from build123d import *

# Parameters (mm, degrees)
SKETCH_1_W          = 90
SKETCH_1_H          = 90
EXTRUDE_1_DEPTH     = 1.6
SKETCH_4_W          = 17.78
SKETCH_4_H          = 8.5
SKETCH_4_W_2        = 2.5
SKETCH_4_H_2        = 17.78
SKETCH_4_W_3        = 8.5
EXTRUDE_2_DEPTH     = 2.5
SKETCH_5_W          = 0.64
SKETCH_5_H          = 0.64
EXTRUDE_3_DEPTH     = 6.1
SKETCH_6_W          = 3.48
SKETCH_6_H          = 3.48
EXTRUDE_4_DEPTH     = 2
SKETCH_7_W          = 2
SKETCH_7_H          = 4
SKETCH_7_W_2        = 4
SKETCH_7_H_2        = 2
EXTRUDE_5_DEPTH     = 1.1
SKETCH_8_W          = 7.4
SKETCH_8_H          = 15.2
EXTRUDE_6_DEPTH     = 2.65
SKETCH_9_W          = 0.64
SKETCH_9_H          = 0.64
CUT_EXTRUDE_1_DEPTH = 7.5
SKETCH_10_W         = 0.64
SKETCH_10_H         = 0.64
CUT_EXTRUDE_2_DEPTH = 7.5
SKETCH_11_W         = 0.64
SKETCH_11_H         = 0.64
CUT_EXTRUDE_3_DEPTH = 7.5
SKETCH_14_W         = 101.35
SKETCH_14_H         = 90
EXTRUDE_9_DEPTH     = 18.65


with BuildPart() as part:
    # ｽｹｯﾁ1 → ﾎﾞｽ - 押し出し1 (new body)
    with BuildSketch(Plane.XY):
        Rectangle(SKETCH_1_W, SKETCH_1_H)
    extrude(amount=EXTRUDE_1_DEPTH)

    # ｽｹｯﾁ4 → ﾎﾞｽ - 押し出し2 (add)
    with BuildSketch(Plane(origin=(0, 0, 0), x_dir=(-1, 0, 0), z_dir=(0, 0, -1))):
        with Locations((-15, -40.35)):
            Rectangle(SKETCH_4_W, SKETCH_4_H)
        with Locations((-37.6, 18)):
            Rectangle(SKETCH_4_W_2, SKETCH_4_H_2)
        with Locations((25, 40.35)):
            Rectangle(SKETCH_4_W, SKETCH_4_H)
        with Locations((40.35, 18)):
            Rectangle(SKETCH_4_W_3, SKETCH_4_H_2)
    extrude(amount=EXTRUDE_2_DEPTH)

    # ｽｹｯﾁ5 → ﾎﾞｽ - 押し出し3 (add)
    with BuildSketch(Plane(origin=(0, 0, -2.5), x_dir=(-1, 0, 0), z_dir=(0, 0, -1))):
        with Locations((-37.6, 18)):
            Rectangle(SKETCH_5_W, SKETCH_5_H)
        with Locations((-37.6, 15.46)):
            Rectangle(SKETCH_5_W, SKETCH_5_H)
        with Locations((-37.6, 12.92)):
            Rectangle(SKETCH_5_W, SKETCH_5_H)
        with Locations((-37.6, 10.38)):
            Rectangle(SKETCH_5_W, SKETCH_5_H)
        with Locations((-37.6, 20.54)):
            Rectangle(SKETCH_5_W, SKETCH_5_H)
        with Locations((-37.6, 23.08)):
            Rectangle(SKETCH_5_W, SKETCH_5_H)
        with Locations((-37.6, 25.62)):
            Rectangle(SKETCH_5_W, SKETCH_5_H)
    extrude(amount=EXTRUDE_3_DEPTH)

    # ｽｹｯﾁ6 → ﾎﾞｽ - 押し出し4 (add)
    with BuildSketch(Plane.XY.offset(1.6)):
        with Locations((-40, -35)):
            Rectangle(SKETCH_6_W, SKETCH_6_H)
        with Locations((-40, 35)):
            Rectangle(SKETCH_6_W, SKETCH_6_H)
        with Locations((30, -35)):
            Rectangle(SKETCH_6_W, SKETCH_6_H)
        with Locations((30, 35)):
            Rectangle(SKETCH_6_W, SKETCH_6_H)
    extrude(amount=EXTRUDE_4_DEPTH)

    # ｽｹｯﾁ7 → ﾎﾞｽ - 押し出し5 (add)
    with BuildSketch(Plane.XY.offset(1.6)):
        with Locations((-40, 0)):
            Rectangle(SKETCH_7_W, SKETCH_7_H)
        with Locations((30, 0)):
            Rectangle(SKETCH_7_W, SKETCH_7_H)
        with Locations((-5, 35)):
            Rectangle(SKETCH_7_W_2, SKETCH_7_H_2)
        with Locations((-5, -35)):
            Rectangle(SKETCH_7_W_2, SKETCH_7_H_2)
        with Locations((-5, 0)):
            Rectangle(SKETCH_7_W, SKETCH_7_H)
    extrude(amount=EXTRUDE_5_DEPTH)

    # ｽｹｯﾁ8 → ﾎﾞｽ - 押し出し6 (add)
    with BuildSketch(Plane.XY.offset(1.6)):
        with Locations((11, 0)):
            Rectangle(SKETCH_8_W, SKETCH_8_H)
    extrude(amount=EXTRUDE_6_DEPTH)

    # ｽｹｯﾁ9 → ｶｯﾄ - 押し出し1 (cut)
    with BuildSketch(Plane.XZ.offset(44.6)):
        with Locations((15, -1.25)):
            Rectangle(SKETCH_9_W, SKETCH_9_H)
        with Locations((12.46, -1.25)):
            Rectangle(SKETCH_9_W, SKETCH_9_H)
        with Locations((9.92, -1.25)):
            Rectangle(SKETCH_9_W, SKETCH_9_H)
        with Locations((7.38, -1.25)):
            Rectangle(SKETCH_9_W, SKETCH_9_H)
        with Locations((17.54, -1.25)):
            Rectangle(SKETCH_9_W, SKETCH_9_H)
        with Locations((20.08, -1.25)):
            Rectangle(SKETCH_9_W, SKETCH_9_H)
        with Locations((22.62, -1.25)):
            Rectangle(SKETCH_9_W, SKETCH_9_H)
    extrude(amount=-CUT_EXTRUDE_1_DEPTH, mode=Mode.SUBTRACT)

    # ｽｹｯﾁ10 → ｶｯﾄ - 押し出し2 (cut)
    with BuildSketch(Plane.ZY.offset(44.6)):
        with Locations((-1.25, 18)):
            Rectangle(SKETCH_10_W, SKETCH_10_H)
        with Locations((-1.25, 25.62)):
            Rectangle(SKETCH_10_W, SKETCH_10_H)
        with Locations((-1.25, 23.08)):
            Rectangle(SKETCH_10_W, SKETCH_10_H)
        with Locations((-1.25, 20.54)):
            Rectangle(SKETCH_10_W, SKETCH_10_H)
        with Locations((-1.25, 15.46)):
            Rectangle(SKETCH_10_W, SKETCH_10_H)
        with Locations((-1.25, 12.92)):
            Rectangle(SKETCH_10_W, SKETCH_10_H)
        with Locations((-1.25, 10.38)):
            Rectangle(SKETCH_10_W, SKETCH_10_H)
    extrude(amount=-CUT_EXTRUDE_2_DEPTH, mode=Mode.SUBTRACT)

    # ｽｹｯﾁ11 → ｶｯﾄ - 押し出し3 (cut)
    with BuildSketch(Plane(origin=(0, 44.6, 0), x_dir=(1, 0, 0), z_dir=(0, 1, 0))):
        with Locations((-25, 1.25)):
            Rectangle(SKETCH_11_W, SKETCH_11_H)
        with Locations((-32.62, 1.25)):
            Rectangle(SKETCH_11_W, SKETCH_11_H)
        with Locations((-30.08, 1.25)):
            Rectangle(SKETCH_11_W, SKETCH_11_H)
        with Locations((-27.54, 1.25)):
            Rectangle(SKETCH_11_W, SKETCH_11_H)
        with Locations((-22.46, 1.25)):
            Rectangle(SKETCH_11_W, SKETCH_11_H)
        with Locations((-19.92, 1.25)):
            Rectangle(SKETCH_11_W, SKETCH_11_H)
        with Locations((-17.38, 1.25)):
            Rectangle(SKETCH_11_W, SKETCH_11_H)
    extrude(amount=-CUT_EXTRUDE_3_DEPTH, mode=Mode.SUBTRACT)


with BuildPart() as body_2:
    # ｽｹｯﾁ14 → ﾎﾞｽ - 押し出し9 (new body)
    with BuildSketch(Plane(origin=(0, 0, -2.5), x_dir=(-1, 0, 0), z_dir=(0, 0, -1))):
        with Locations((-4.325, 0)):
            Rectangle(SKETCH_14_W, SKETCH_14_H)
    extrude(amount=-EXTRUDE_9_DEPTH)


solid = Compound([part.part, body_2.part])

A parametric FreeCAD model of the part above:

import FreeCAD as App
import Part
import Sketcher
from FreeCAD import Vector


def add_polygon(sketch, points):
    """Adds a closed chain of lines whose ends are joined by coincident constraints."""
    first, n = sketch.GeometryCount, len(points)
    for a, b in zip(points, points[1:] + points[:1]):
        sketch.addGeometry(Part.LineSegment(App.Vector(*a, 0), App.Vector(*b, 0)), False)
    for i in range(n):
        sketch.addConstraint(Sketcher.Constraint("Coincident", first + i, 2, first + (i + 1) % n, 1))

doc = App.newDocument("Part")
params = doc.addObject("Spreadsheet::Sheet", "Params")
for row, (alias, value) in enumerate([
    ("sketch1_width", "90 mm"),
    ("pad1_length", "1.6 mm"),
    ("sketch2_width", "2.5 mm"),
    ("sketch2_width2", "8.5 mm"),
    ("sketch2_width3", "17.78 mm"),
    ("pad2_length", "2.5 mm"),
    ("sketch3_width", "0.64 mm"),
    ("pad3_length", "6.1 mm"),
    ("sketch4_width", "3.48 mm"),
    ("pad4_length", "2 mm"),
    ("sketch5_width", "2 mm"),
    ("sketch5_width2", "4 mm"),
    ("pad5_length", "1.1 mm"),
    ("sketch6_width", "7.4 mm"),
    ("sketch6_height", "15.2 mm"),
    ("pad6_length", "2.65 mm"),
    ("sketch7_width", "0.64 mm"),
    ("pocket1_length", "7.5 mm"),
    ("sketch8_width", "0.64 mm"),
    ("pocket2_length", "7.5 mm"),
    ("sketch9_width", "0.64 mm"),
    ("pocket3_length", "7.5 mm"),
    ("sketch10_height", "90 mm"),
    ("sketch10_width", "101.35 mm"),
    ("pad7_length", "18.65 mm"),
], start=1):
    params.set(f"A{row}", alias)
    params.set(f"B{row}", "=" + value)
    params.setAlias(f"B{row}", alias)

body = doc.addObject("PartDesign::Body", "Body")

sketch1 = doc.addObject("Sketcher::SketchObject", "Sketch")
body.addObject(sketch1)
sketch1.AttachmentSupport = (doc.XY_Plane, [""])
sketch1.MapMode = "FlatFace"
add_polygon(sketch1, [(-45, 45), (-45, -45), (45, -45), (45, 45)])
sketch1.addConstraint([
    Sketcher.Constraint("Vertical", 0),
    Sketcher.Constraint("Horizontal", 1),
    Sketcher.Constraint("Vertical", 2),
    Sketcher.Constraint("Horizontal", 3),
    Sketcher.Constraint("Symmetric", 0, 2, 2, 2, -1, 1),
    Sketcher.Constraint("Equal", 3, 0),
    Sketcher.Constraint("DistanceX", 1, 1, 1, 2, 90.0),
])
sketch1.setExpression("Constraints[10]", "Params.sketch1_width")
pad1 = doc.addObject("PartDesign::Pad", "Pad")
body.addObject(pad1)
pad1.Profile = sketch1
pad1.setExpression("Length", "Params.pad1_length")

sketch2 = doc.addObject("Sketcher::SketchObject", "Sketch001")
body.addObject(sketch2)
sketch2.AttachmentSupport = (doc.XY_Plane, [""])
sketch2.MapMode = "FlatFace"
add_polygon(sketch2, [(23.9, -36.1), (23.9, -44.6), (6.1, -44.6), (6.1, -36.1)])
add_polygon(sketch2, [(38.9, 26.9), (38.9, 9.1), (36.4, 9.1), (36.4, 26.9)])
add_polygon(sketch2, [(-16.1, 44.6), (-16.1, 36.1), (-33.9, 36.1), (-33.9, 44.6)])
add_polygon(sketch2, [(-36.1, 26.9), (-36.1, 9.1), (-44.6, 9.1), (-44.6, 26.9)])
sketch2.addConstraint([
    Sketcher.Constraint("Vertical", 0),
    Sketcher.Constraint("Horizontal", 1),
    Sketcher.Constraint("Vertical", 2),
    Sketcher.Constraint("Horizontal", 3),
    Sketcher.Constraint("Vertical", 4),
    Sketcher.Constraint("Horizontal", 5),
    Sketcher.Constraint("Vertical", 6),
    Sketcher.Constraint("Horizontal", 7),
    Sketcher.Constraint("Vertical", 8),
    Sketcher.Constraint("Horizontal", 9),
    Sketcher.Constraint("Vertical", 10),
    Sketcher.Constraint("Horizontal", 11),
    Sketcher.Constraint("Vertical", 12),
    Sketcher.Constraint("Horizontal", 13),
    Sketcher.Constraint("Vertical", 14),
    Sketcher.Constraint("Horizontal", 15),
    Sketcher.Constraint("Horizontal", 5, 2, 12, 2),
    Sketcher.Constraint("Horizontal", 7, 2, 14, 2),
    Sketcher.Constraint("Equal", 3, 9),
    Sketcher.Constraint("Equal", 15, 0),
    Sketcher.Constraint("Equal", 11, 4),
    Sketcher.Constraint("Equal", 2, 8),
    Sketcher.Constraint("DistanceX", 5, 2, 5, 1, 2.5),
    Sketcher.Constraint("DistanceX", 13, 2, 13, 1, 8.5),
    Sketcher.Constraint("DistanceX", 1, 2, 1, 1, 17.78),
    Sketcher.Constraint("DistanceY", 0, 2, -1, 1, 44.6),
    Sketcher.Constraint("DistanceY", -1, 1, 8, 2, 36.1),
    Sketcher.Constraint("DistanceX", 12, 2, -1, 1, 36.1),
    Sketcher.Constraint("DistanceX", -1, 1, 0, 2, 23.89),
    Sketcher.Constraint("DistanceX", -1, 1, 4, 2, 38.85),
    Sketcher.Constraint("DistanceY", -1, 1, 4, 2, 9.11),
    Sketcher.Constraint("DistanceX", 8, 2, -1, 1, 16.11),
])
sketch2.setExpression("Constraints[38]", "Params.sketch2_width")
sketch2.setExpression("Constraints[39]", "Params.sketch2_width2")
sketch2.setExpression("Constraints[40]", "Params.sketch2_width3")
pad2 = doc.addObject("PartDesign::Pad", "Pad001")
body.addObject(pad2)
pad2.Profile = sketch2
pad2.setExpression("Length", "Params.pad2_length")
pad2.Reversed = True

sketch3 = doc.addObject("Sketcher::SketchObject", "Sketch002")
body.addObject(sketch3)
sketch3.AttachmentSupport = (doc.XY_Plane, [""])
sketch3.MapMode = "FlatFace"
sketch3.AttachmentOffset = App.Placement(Vector(0, 0, -2.5), App.Rotation())
add_polygon(sketch3, [(37.9, 18.3), (37.9, 17.7), (37.3, 17.7), (37.3, 18.3)])
add_polygon(sketch3, [(37.9, 15.8), (37.9, 15.1), (37.3, 15.1), (37.3, 15.8)])
add_polygon(sketch3, [(37.9, 13.2), (37.9, 12.6), (37.3, 12.6), (37.3, 13.2)])
add_polygon(sketch3, [(37.9, 10.7), (37.9, 10.1), (37.3, 10.1), (37.3, 10.7)])
add_polygon(sketch3, [(37.9, 20.9), (37.9, 20.2), (37.3, 20.2), (37.3, 20.9)])
add_polygon(sketch3, [(37.9, 23.4), (37.9, 22.8), (37.3, 22.8), (37.3, 23.4)])
add_polygon(sketch3, [(37.9, 25.9), (37.9, 25.3), (37.3, 25.3), (37.3, 25.9)])
sketch3.addConstraint([
    Sketcher.Constraint("Vertical", 0),
    Sketcher.Constraint("Horizontal", 1),
    Sketcher.Constraint("Vertical", 2),
    Sketcher.Constraint("Horizontal", 3),
    Sketcher.Constraint("Vertical", 4),
    Sketcher.Constraint("Horizontal", 5),
    Sketcher.Constraint("Vertical", 6),
    Sketcher.Constraint("Horizontal", 7),
    Sketcher.Constraint("Vertical", 8),
    Sketcher.Constraint("Horizontal", 9),
    Sketcher.Constraint("Vertical", 10),
    Sketcher.Constraint("Horizontal", 11),
    Sketcher.Constraint("Vertical", 12),
    Sketcher.Constraint("Horizontal", 13),
    Sketcher.Constraint("Vertical", 14),
    Sketcher.Constraint("Horizontal", 15),
    Sketcher.Constraint("Vertical", 16),
    Sketcher.Constraint("Horizontal", 17),
    Sketcher.Constraint("Vertical", 18),
    Sketcher.Constraint("Horizontal", 19),
    Sketcher.Constraint("Vertical", 20),
    Sketcher.Constraint("Horizontal", 21),
    Sketcher.Constraint("Vertical", 22),
    Sketcher.Constraint("Horizontal", 23),
    Sketcher.Constraint("Vertical", 24),
    Sketcher.Constraint("Horizontal", 25),
    Sketcher.Constraint("Vertical", 26),
    Sketcher.Constraint("Horizontal", 27),
    Sketcher.Constraint("Vertical", 3, 2, 4, 2),
    Sketcher.Constraint("Vertical", 2, 2, 5, 2),
    Sketcher.Constraint("Vertical", 7, 2, 8, 2),
    Sketcher.Constraint("Vertical", 6, 2, 9, 2),
    Sketcher.Constraint("Vertical", 11, 2, 12, 2),
    Sketcher.Constraint("Vertical", 10, 2, 13, 2),
    Sketcher.Constraint("Vertical", 15, 2, 16, 2),
    Sketcher.Constraint("Vertical", 14, 2, 17, 2),
    Sketcher.Constraint("Vertical", 19, 2, 20, 2),
    Sketcher.Constraint("Vertical", 18, 2, 21, 2),
    Sketcher.Constraint("Vertical", 23, 2, 24, 2),
    Sketcher.Constraint("Vertical", 22, 2, 25, 2),
    Sketcher.Constraint("Equal", 27, 0),
    Sketcher.Constraint("Equal", 2, 4),
    Sketcher.Constraint("Equal", 6, 8),
    Sketcher.Constraint("Equal", 10, 12),
    Sketcher.Constraint("Equal", 14, 16),
    Sketcher.Constraint("Equal", 18, 20),
    Sketcher.Constraint("Equal", 22, 24),
    Sketcher.Constraint("DistanceX", 1, 2, 1, 1, 0.64),
    Sketcher.Constraint("DistanceY", -1, 1, 8, 2, 12.6),
    Sketcher.Constraint("DistanceY", -1, 1, 14, 2, 10.7),
    Sketcher.Constraint("DistanceY", -1, 1, 22, 2, 23.4),
    Sketcher.Constraint("DistanceY", -1, 1, 24, 2, 25.3),
    Sketcher.Constraint("DistanceY", 6, 2, 1, 2, 1.9),
    Sketcher.Constraint("DistanceY", 10, 2, 5, 2, 1.9),
    Sketcher.Constraint("DistanceY", 3, 2, 16, 2, 1.9),
    Sketcher.Constraint("DistanceX", -1, 1, 0, 2, 37.92),
])
sketch3.setExpression("Constraints[75]", "Params.sketch3_width")
pad3 = doc.addObject("PartDesign::Pad", "Pad002")
body.addObject(pad3)
pad3.Profile = sketch3
pad3.setExpression("Length", "Params.pad3_length")
pad3.Reversed = True

sketch4 = doc.addObject("Sketcher::SketchObject", "Sketch003")
body.addObject(sketch4)
sketch4.AttachmentSupport = (doc.XY_Plane, [""])
sketch4.MapMode = "FlatFace"
sketch4.AttachmentOffset = App.Placement(Vector(0, 0, 1.6), App.Rotation())
add_polygon(sketch4, [(-41.7, -33.3), (-41.7, -36.7), (-38.3, -36.7), (-38.3, -33.3)])
add_polygon(sketch4, [(-41.7, 36.7), (-41.7, 33.3), (-38.3, 33.3), (-38.3, 36.7)])
add_polygon(sketch4, [(28.3, -33.3), (28.3, -36.7), (31.7, -36.7), (31.7, -33.3)])
add_polygon(sketch4, [(28.3, 36.7), (28.3, 33.3), (31.7, 33.3), (31.7, 36.7)])
sketch4.addConstraint([
    Sketcher.Constraint("Vertical", 0),
    Sketcher.Constraint("Horizontal", 1),
    Sketcher.Constraint("Vertical", 2),
    Sketcher.Constraint("Horizontal", 3),
    Sketcher.Constraint("Vertical", 4),
    Sketcher.Constraint("Horizontal", 5),
    Sketcher.Constraint("Vertical", 6),
    Sketcher.Constraint("Horizontal", 7),
    Sketcher.Constraint("Vertical", 8),
    Sketcher.Constraint("Horizontal", 9),
    Sketcher.Constraint("Vertical", 10),
    Sketcher.Constraint("Horizontal", 11),
    Sketcher.Constraint("Vertical", 12),
    Sketcher.Constraint("Horizontal", 13),
    Sketcher.Constraint("Vertical", 14),
    Sketcher.Constraint("Horizontal", 15),
    Sketcher.Constraint("Symmetric", 3, 2, 4, 2, -1),
    Sketcher.Constraint("Symmetric", 1, 2, 6, 2, -1),
    Sketcher.Constraint("Symmetric", 11, 2, 12, 2, -1),
    Sketcher.Constraint("Symmetric", 9, 2, 14, 2, -1),
    Sketcher.Constraint("Horizontal", 1, 2, 8, 2),
    Sketcher.Constraint("Horizontal", 3, 2, 10, 2),
    Sketcher.Constraint("Equal", 7, 9),
    Sketcher.Constraint("Equal", 15, 0),
    Sketcher.Constraint("DistanceY", 0, 2, 4, 2, 70.0),
    Sketcher.Constraint("DistanceX", 0, 2, 8, 2, 70.0),
    Sketcher.Constraint("DistanceX", 1, 1, 1, 2, 3.48),
    Sketcher.Constraint("DistanceX", 0, 2, -1, 1, 41.74),
])
sketch4.setExpression("Constraints[42]", "Params.sketch4_width")
pad4 = doc.addObject("PartDesign::Pad", "Pad003")
body.addObject(pad4)
pad4.Profile = sketch4
pad4.setExpression("Length", "Params.pad4_length")

sketch5 = doc.addObject("Sketcher::SketchObject", "Sketch004")
body.addObject(sketch5)
sketch5.AttachmentSupport = (doc.XY_Plane, [""])
sketch5.MapMode = "FlatFace"
sketch5.AttachmentOffset = App.Placement(Vector(0, 0, 1.6), App.Rotation())
add_polygon(sketch5, [(-41, 2), (-41, -2), (-39, -2), (-39, 2)])
add_polygon(sketch5, [(29, 2), (29, -2), (31, -2), (31, 2)])
add_polygon(sketch5, [(-7, 36), (-7, 34), (-3, 34), (-3, 36)])
add_polygon(sketch5, [(-7, -34), (-7, -36), (-3, -36), (-3, -34)])
add_polygon(sketch5, [(-6, 2), (-6, -2), (-4, -2), (-4, 2)])
sketch5.addConstraint([
    Sketcher.Constraint("Vertical", 0),
    Sketcher.Constraint("Horizontal", 1),
    Sketcher.Constraint("Vertical", 2),
    Sketcher.Constraint("Horizontal", 3),
    Sketcher.Constraint("Vertical", 4),
    Sketcher.Constraint("Horizontal", 5),
    Sketcher.Constraint("Vertical", 6),
    Sketcher.Constraint("Horizontal", 7),
    Sketcher.Constraint("Vertical", 8),
    Sketcher.Constraint("Horizontal", 9),
    Sketcher.Constraint("Vertical", 10),
    Sketcher.Constraint("Horizontal", 11),
    Sketcher.Constraint("Vertical", 12),
    Sketcher.Constraint("Horizontal", 13),
    Sketcher.Constraint("Vertical", 14),
    Sketcher.Constraint("Horizontal", 15),
    Sketcher.Constraint("Vertical", 16),
    Sketcher.Constraint("Horizontal", 17),
    Sketcher.Constraint("Vertical", 18),
    Sketcher.Constraint("Horizontal", 19),
    Sketcher.Constraint("Symmetric", 11, 2, 12, 2, -1),
    Sketcher.Constraint("Symmetric", 9, 2, 14, 2, -1),
    Sketcher.Constraint("Horizontal", 1, 2, 4, 2),
    Sketcher.Constraint("Horizontal", 3, 2, 6, 2),
    Sketcher.Constraint("Horizontal", 5, 2, 16, 2),
    Sketcher.Constraint("Horizontal", 7, 2, 18, 2),
    Sketcher.Constraint("Equal", 3, 5),
    Sketcher.Constraint("Equal", 7, 17),
    Sketcher.Constraint("Equal", 15, 0),
    Sketcher.Constraint("Equal", 19, 8),
    Sketcher.Constraint("DistanceX", 1, 1, 1, 2, 2.0),
    Sketcher.Constraint("DistanceX", 9, 1, 9, 2, 4.0),
    Sketcher.Constraint("DistanceX", 0, 2, -1, 1, 41.0),
    Sketcher.Constraint("DistanceY", 0, 2, -1, 1, 2.0),
    Sketcher.Constraint("DistanceX", -1, 1, 4, 2, 29.0),
    Sketcher.Constraint("DistanceX", 8, 2, -1, 1, 7.0),
    Sketcher.Constraint("DistanceY", -1, 1, 8, 2, 34.0),
    Sketcher.Constraint("DistanceX", 16, 2, -1, 1, 6.0),
])
sketch5.setExpression("Constraints[50]", "Params.sketch5_width")
sketch5.setExpression("Constraints[51]", "Params.sketch5_width2")
pad5 = doc.addObject("PartDesign::Pad", "Pad004")
body.addObject(pad5)
pad5.Profile = sketch5
pad5.setExpression("Length", "Params.pad5_length")

sketch6 = doc.addObject("Sketcher::SketchObject", "Sketch005")
body.addObject(sketch6)
sketch6.AttachmentSupport = (doc.XY_Plane, [""])
sketch6.MapMode = "FlatFace"
sketch6.AttachmentOffset = App.Placement(Vector(0, 0, 1.6), App.Rotation())
add_polygon(sketch6, [(7, 8), (7, -8), (15, -8), (15, 8)])
sketch6.addConstraint([
    Sketcher.Constraint("Vertical", 0),
    Sketcher.Constraint("Horizontal", 1),
    Sketcher.Constraint("Vertical", 2),
    Sketcher.Constraint("Horizontal", 3),
    Sketcher.Constraint("DistanceX", 1, 1, 1, 2, 7.4),
    Sketcher.Constraint("DistanceY", 0, 2, 0, 1, 15.2),
    Sketcher.Constraint("DistanceX", -1, 1, 0, 2, 7.3),
    Sketcher.Constraint("DistanceY", 0, 2, -1, 1, 7.6),
])
sketch6.setExpression("Constraints[8]", "Params.sketch6_width")
sketch6.setExpression("Constraints[9]", "Params.sketch6_height")
pad6 = doc.addObject("PartDesign::Pad", "Pad005")
body.addObject(pad6)
pad6.Profile = sketch6
pad6.setExpression("Length", "Params.pad6_length")

sketch7 = doc.addObject("Sketcher::SketchObject", "Sketch006")
body.addObject(sketch7)
sketch7.AttachmentSupport = (doc.XZ_Plane, [""])
sketch7.MapMode = "FlatFace"
sketch7.AttachmentOffset = App.Placement(Vector(0, 0, 44.6), App.Rotation())
add_polygon(sketch7, [(14.7, -0.9), (14.7, -1.6), (15.3, -1.6), (15.3, -0.9)])
add_polygon(sketch7, [(12.1, -0.9), (12.1, -1.6), (12.8, -1.6), (12.8, -0.9)])
add_polygon(sketch7, [(9.6, -0.9), (9.6, -1.6), (10.2, -1.6), (10.2, -0.9)])
add_polygon(sketch7, [(7.1, -0.9), (7.1, -1.6), (7.7, -1.6), (7.7, -0.9)])
add_polygon(sketch7, [(17.2, -0.9), (17.2, -1.6), (17.9, -1.6), (17.9, -0.9)])
add_polygon(sketch7, [(19.8, -0.9), (19.8, -1.6), (20.4, -1.6), (20.4, -0.9)])
add_polygon(sketch7, [(22.3, -0.9), (22.3, -1.6), (22.9, -1.6), (22.9, -0.9)])
sketch7.addConstraint([
    Sketcher.Constraint("Vertical", 0),
    Sketcher.Constraint("Horizontal", 1),
    Sketcher.Constraint("Vertical", 2),
    Sketcher.Constraint("Horizontal", 3),
    Sketcher.Constraint("Vertical", 4),
    Sketcher.Constraint("Horizontal", 5),
    Sketcher.Constraint("Vertical", 6),
    Sketcher.Constraint("Horizontal", 7),
    Sketcher.Constraint("Vertical", 8),
    Sketcher.Constraint("Horizontal", 9),
    Sketcher.Constraint("Vertical", 10),
    Sketcher.Constraint("Horizontal", 11),
    Sketcher.Constraint("Vertical", 12),
    Sketcher.Constraint("Horizontal", 13),
    Sketcher.Constraint("Vertical", 14),
    Sketcher.Constraint("Horizontal", 15),
    Sketcher.Constraint("Vertical", 16),
    Sketcher.Constraint("Horizontal", 17),
    Sketcher.Constraint("Vertical", 18),
    Sketcher.Constraint("Horizontal", 19),
    Sketcher.Constraint("Vertical", 20),
    Sketcher.Constraint("Horizontal", 21),
    Sketcher.Constraint("Vertical", 22),
    Sketcher.Constraint("Horizontal", 23),
    Sketcher.Constraint("Vertical", 24),
    Sketcher.Constraint("Horizontal", 25),
    Sketcher.Constraint("Vertical", 26),
    Sketcher.Constraint("Horizontal", 27),
    Sketcher.Constraint("Horizontal", 1, 2, 4, 2),
    Sketcher.Constraint("Horizontal", 3, 2, 6, 2),
    Sketcher.Constraint("Horizontal", 5, 2, 8, 2),
    Sketcher.Constraint("Horizontal", 7, 2, 10, 2),
    Sketcher.Constraint("Horizontal", 9, 2, 12, 2),
    Sketcher.Constraint("Horizontal", 11, 2, 14, 2),
    Sketcher.Constraint("Horizontal", 13, 2, 16, 2),
    Sketcher.Constraint("Horizontal", 15, 2, 18, 2),
    Sketcher.Constraint("Horizontal", 17, 2, 20, 2),
    Sketcher.Constraint("Horizontal", 19, 2, 22, 2),
    Sketcher.Constraint("Horizontal", 21, 2, 24, 2),
    Sketcher.Constraint("Horizontal", 23, 2, 26, 2),
    Sketcher.Constraint("Equal", 3, 5),
    Sketcher.Constraint("Equal", 7, 9),
    Sketcher.Constraint("Equal", 11, 13),
    Sketcher.Constraint("Equal", 15, 17),
    Sketcher.Constraint("Equal", 19, 21),
    Sketcher.Constraint("Equal", 23, 25),
    Sketcher.Constraint("Equal", 27, 0),
    Sketcher.Constraint("DistanceX", 1, 1, 1, 2, 0.64),
    Sketcher.Constraint("DistanceX", -1, 1, 8, 2, 9.6),
    Sketcher.Constraint("DistanceX", -1, 1, 13, 2, 7.7),
    Sketcher.Constraint("DistanceX", -1, 1, 21, 2, 20.4),
    Sketcher.Constraint("DistanceX", -1, 1, 24, 2, 22.3),
    Sketcher.Constraint("DistanceX", 5, 2, 0, 2, 1.9),
    Sketcher.Constraint("DistanceX", 9, 2, 4, 2, 1.9),
    Sketcher.Constraint("DistanceX", 1, 2, 16, 2, 1.9),
    Sketcher.Constraint("DistanceY", 0, 2, -1, 1, 1.57),
])
sketch7.setExpression("Constraints[75]", "Params.sketch7_width")
pocket1 = doc.addObject("PartDesign::Pocket", "Pocket")
body.addObject(pocket1)
pocket1.Profile = sketch7
pocket1.setExpression("Length", "Params.pocket1_length")

sketch8 = doc.addObject("Sketcher::SketchObject", "Sketch007")
body.addObject(sketch8)
sketch8.AttachmentSupport = (doc.YZ_Plane, [""])
sketch8.MapMode = "FlatFace"
sketch8.AttachmentOffset = App.Placement(Vector(0, 0, -44.6), App.Rotation())
add_polygon(sketch8, [(18.3, -1.6), (17.7, -1.6), (17.7, -0.9), (18.3, -0.9)])
add_polygon(sketch8, [(25.9, -1.6), (25.3, -1.6), (25.3, -0.9), (25.9, -0.9)])
add_polygon(sketch8, [(23.4, -1.6), (22.8, -1.6), (22.8, -0.9), (23.4, -0.9)])
add_polygon(sketch8, [(20.9, -1.6), (20.2, -1.6), (20.2, -0.9), (20.9, -0.9)])
add_polygon(sketch8, [(15.8, -1.6), (15.1, -1.6), (15.1, -0.9), (15.8, -0.9)])
add_polygon(sketch8, [(13.2, -1.6), (12.6, -1.6), (12.6, -0.9), (13.2, -0.9)])
add_polygon(sketch8, [(10.7, -1.6), (10.1, -1.6), (10.1, -0.9), (10.7, -0.9)])
sketch8.addConstraint([
    Sketcher.Constraint("Horizontal", 0),
    Sketcher.Constraint("Vertical", 1),
    Sketcher.Constraint("Horizontal", 2),
    Sketcher.Constraint("Vertical", 3),
    Sketcher.Constraint("Horizontal", 4),
    Sketcher.Constraint("Vertical", 5),
    Sketcher.Constraint("Horizontal", 6),
    Sketcher.Constraint("Vertical", 7),
    Sketcher.Constraint("Horizontal", 8),
    Sketcher.Constraint("Vertical", 9),
    Sketcher.Constraint("Horizontal", 10),
    Sketcher.Constraint("Vertical", 11),
    Sketcher.Constraint("Horizontal", 12),
    Sketcher.Constraint("Vertical", 13),
    Sketcher.Constraint("Horizontal", 14),
    Sketcher.Constraint("Vertical", 15),
    Sketcher.Constraint("Horizontal", 16),
    Sketcher.Constraint("Vertical", 17),
    Sketcher.Constraint("Horizontal", 18),
    Sketcher.Constraint("Vertical", 19),
    Sketcher.Constraint("Horizontal", 20),
    Sketcher.Constraint("Vertical", 21),
    Sketcher.Constraint("Horizontal", 22),
    Sketcher.Constraint("Vertical", 23),
    Sketcher.Constraint("Horizontal", 24),
    Sketcher.Constraint("Vertical", 25),
    Sketcher.Constraint("Horizontal", 26),
    Sketcher.Constraint("Vertical", 27),
    Sketcher.Constraint("Horizontal", 3, 2, 4, 2),
    Sketcher.Constraint("Horizontal", 2, 2, 5, 2),
    Sketcher.Constraint("Horizontal", 7, 2, 8, 2),
    Sketcher.Constraint("Horizontal", 6, 2, 9, 2),
    Sketcher.Constraint("Horizontal", 11, 2, 12, 2),
    Sketcher.Constraint("Horizontal", 10, 2, 13, 2),
    Sketcher.Constraint("Horizontal", 15, 2, 16, 2),
    Sketcher.Constraint("Horizontal", 14, 2, 17, 2),
    Sketcher.Constraint("Horizontal", 19, 2, 20, 2),
    Sketcher.Constraint("Horizontal", 18, 2, 21, 2),
    Sketcher.Constraint("Horizontal", 23, 2, 24, 2),
    Sketcher.Constraint("Horizontal", 22, 2, 25, 2),
    Sketcher.Constraint("Equal", 2, 4),
    Sketcher.Constraint("Equal", 6, 8),
    Sketcher.Constraint("Equal", 10, 12),
    Sketcher.Constraint("Equal", 14, 16),
    Sketcher.Constraint("Equal", 18, 20),
    Sketcher.Constraint("Equal", 22, 24),
    Sketcher.Constraint("Equal", 26, 1),
    Sketcher.Constraint("DistanceX", 0, 2, 0, 1, 0.64),
    Sketcher.Constraint("DistanceX", -1, 1, 4, 2, 25.3),
    Sketcher.Constraint("DistanceX", -1, 1, 10, 2, 23.4),
    Sketcher.Constraint("DistanceX", -1, 1, 20, 2, 12.6),
    Sketcher.Constraint("DistanceX", -1, 1, 26, 2, 10.7),
    Sketcher.Constraint("DistanceX", 3, 2, 12, 2, 1.9),
    Sketcher.Constraint("DistanceX", 14, 2, 9, 2, 1.9),
    Sketcher.Constraint("DistanceX", 18, 2, 1, 2, 1.9),
    Sketcher.Constraint("DistanceY", 0, 2, -1, 1, 1.57),
])
sketch8.setExpression("Constraints[75]", "Params.sketch8_width")
pocket2 = doc.addObject("PartDesign::Pocket", "Pocket001")
body.addObject(pocket2)
pocket2.Profile = sketch8
pocket2.setExpression("Length", "Params.pocket2_length")
pocket2.Reversed = True

sketch9 = doc.addObject("Sketcher::SketchObject", "Sketch008")
body.addObject(sketch9)
sketch9.AttachmentSupport = (doc.XZ_Plane, [""])
sketch9.MapMode = "FlatFace"
sketch9.AttachmentOffset = App.Placement(Vector(0, 0, -44.6), App.Rotation())
add_polygon(sketch9, [(-25.3, -1.6), (-25.3, -0.9), (-24.7, -0.9), (-24.7, -1.6)])
add_polygon(sketch9, [(-32.9, -1.6), (-32.9, -0.9), (-32.3, -0.9), (-32.3, -1.6)])
add_polygon(sketch9, [(-30.4, -1.6), (-30.4, -0.9), (-29.8, -0.9), (-29.8, -1.6)])
add_polygon(sketch9, [(-27.9, -1.6), (-27.9, -0.9), (-27.2, -0.9), (-27.2, -1.6)])
add_polygon(sketch9, [(-22.8, -1.6), (-22.8, -0.9), (-22.1, -0.9), (-22.1, -1.6)])
add_polygon(sketch9, [(-20.2, -1.6), (-20.2, -0.9), (-19.6, -0.9), (-19.6, -1.6)])
add_polygon(sketch9, [(-17.7, -1.6), (-17.7, -0.9), (-17.1, -0.9), (-17.1, -1.6)])
sketch9.addConstraint([
    Sketcher.Constraint("Vertical", 0),
    Sketcher.Constraint("Horizontal", 1),
    Sketcher.Constraint("Vertical", 2),
    Sketcher.Constraint("Horizontal", 3),
    Sketcher.Constraint("Vertical", 4),
    Sketcher.Constraint("Horizontal", 5),
    Sketcher.Constraint("Vertical", 6),
    Sketcher.Constraint("Horizontal", 7),
    Sketcher.Constraint("Vertical", 8),
    Sketcher.Constraint("Horizontal", 9),
    Sketcher.Constraint("Vertical", 10),
    Sketcher.Constraint("Horizontal", 11),
    Sketcher.Constraint("Vertical", 12),
    Sketcher.Constraint("Horizontal", 13),
    Sketcher.Constraint("Vertical", 14),
    Sketcher.Constraint("Horizontal", 15),
    Sketcher.Constraint("Vertical", 16),
    Sketcher.Constraint("Horizontal", 17),
    Sketcher.Constraint("Vertical", 18),
    Sketcher.Constraint("Horizontal", 19),
    Sketcher.Constraint("Vertical", 20),
    Sketcher.Constraint("Horizontal", 21),
    Sketcher.Constraint("Vertical", 22),
    Sketcher.Constraint("Horizontal", 23),
    Sketcher.Constraint("Vertical", 24),
    Sketcher.Constraint("Horizontal", 25),
    Sketcher.Constraint("Vertical", 26),
    Sketcher.Constraint("Horizontal", 27),
    Sketcher.Constraint("Horizontal", 1, 2, 4, 2),
    Sketcher.Constraint("Horizontal", 3, 2, 6, 2),
    Sketcher.Constraint("Horizontal", 5, 2, 8, 2),
    Sketcher.Constraint("Horizontal", 7, 2, 10, 2),
    Sketcher.Constraint("Horizontal", 9, 2, 12, 2),
    Sketcher.Constraint("Horizontal", 11, 2, 14, 2),
    Sketcher.Constraint("Horizontal", 13, 2, 16, 2),
    Sketcher.Constraint("Horizontal", 15, 2, 18, 2),
    Sketcher.Constraint("Horizontal", 17, 2, 20, 2),
    Sketcher.Constraint("Horizontal", 19, 2, 22, 2),
    Sketcher.Constraint("Horizontal", 21, 2, 24, 2),
    Sketcher.Constraint("Horizontal", 23, 2, 26, 2),
    Sketcher.Constraint("Equal", 3, 5),
    Sketcher.Constraint("Equal", 7, 9),
    Sketcher.Constraint("Equal", 11, 13),
    Sketcher.Constraint("Equal", 15, 17),
    Sketcher.Constraint("Equal", 19, 21),
    Sketcher.Constraint("Equal", 23, 25),
    Sketcher.Constraint("Equal", 27, 0),
    Sketcher.Constraint("DistanceX", 1, 1, 1, 2, 0.64),
    Sketcher.Constraint("DistanceX", 5, 2, -1, 1, 32.3),
    Sketcher.Constraint("DistanceX", 8, 2, -1, 1, 30.4),
    Sketcher.Constraint("DistanceX", 21, 2, -1, 1, 19.6),
    Sketcher.Constraint("DistanceX", 24, 2, -1, 1, 17.7),
    Sketcher.Constraint("DistanceX", 9, 2, 12, 2, 1.9),
    Sketcher.Constraint("DistanceX", 13, 2, 0, 2, 1.9),
    Sketcher.Constraint("DistanceX", 1, 2, 16, 2, 1.9),
    Sketcher.Constraint("DistanceY", 0, 2, -1, 1, 0.93),
])
sketch9.setExpression("Constraints[75]", "Params.sketch9_width")
pocket3 = doc.addObject("PartDesign::Pocket", "Pocket002")
body.addObject(pocket3)
pocket3.Profile = sketch9
pocket3.setExpression("Length", "Params.pocket3_length")
pocket3.Reversed = True
body2 = doc.addObject("PartDesign::Body", "Body001")

sketch10 = doc.addObject("Sketcher::SketchObject", "Sketch009")
body2.addObject(sketch10)
sketch10.AttachmentSupport = (doc.getObject("XY_Plane001"), [""])
sketch10.MapMode = "FlatFace"
sketch10.AttachmentOffset = App.Placement(Vector(0, 0, -2.5), App.Rotation())
add_polygon(sketch10, [(55, 45), (55, -45), (-46, -45), (-46, 45)])
sketch10.addConstraint([
    Sketcher.Constraint("Vertical", 0),
    Sketcher.Constraint("Horizontal", 1),
    Sketcher.Constraint("Vertical", 2),
    Sketcher.Constraint("Horizontal", 3),
    Sketcher.Constraint("DistanceY", 0, 2, 0, 1, 90.0),
    Sketcher.Constraint("DistanceX", -1, 1, 0, 2, 55.0),
    Sketcher.Constraint("DistanceY", 0, 2, -1, 1, 45.0),
    Sketcher.Constraint("DistanceX", 1, 2, 1, 1, 101.35),
])
sketch10.setExpression("Constraints[8]", "Params.sketch10_height")
sketch10.setExpression("Constraints[11]", "Params.sketch10_width")
pad7 = doc.addObject("PartDesign::Pad", "Pad006")
body2.addObject(pad7)
pad7.Profile = sketch10
pad7.setExpression("Length", "Params.pad7_length")

doc.recompute()
